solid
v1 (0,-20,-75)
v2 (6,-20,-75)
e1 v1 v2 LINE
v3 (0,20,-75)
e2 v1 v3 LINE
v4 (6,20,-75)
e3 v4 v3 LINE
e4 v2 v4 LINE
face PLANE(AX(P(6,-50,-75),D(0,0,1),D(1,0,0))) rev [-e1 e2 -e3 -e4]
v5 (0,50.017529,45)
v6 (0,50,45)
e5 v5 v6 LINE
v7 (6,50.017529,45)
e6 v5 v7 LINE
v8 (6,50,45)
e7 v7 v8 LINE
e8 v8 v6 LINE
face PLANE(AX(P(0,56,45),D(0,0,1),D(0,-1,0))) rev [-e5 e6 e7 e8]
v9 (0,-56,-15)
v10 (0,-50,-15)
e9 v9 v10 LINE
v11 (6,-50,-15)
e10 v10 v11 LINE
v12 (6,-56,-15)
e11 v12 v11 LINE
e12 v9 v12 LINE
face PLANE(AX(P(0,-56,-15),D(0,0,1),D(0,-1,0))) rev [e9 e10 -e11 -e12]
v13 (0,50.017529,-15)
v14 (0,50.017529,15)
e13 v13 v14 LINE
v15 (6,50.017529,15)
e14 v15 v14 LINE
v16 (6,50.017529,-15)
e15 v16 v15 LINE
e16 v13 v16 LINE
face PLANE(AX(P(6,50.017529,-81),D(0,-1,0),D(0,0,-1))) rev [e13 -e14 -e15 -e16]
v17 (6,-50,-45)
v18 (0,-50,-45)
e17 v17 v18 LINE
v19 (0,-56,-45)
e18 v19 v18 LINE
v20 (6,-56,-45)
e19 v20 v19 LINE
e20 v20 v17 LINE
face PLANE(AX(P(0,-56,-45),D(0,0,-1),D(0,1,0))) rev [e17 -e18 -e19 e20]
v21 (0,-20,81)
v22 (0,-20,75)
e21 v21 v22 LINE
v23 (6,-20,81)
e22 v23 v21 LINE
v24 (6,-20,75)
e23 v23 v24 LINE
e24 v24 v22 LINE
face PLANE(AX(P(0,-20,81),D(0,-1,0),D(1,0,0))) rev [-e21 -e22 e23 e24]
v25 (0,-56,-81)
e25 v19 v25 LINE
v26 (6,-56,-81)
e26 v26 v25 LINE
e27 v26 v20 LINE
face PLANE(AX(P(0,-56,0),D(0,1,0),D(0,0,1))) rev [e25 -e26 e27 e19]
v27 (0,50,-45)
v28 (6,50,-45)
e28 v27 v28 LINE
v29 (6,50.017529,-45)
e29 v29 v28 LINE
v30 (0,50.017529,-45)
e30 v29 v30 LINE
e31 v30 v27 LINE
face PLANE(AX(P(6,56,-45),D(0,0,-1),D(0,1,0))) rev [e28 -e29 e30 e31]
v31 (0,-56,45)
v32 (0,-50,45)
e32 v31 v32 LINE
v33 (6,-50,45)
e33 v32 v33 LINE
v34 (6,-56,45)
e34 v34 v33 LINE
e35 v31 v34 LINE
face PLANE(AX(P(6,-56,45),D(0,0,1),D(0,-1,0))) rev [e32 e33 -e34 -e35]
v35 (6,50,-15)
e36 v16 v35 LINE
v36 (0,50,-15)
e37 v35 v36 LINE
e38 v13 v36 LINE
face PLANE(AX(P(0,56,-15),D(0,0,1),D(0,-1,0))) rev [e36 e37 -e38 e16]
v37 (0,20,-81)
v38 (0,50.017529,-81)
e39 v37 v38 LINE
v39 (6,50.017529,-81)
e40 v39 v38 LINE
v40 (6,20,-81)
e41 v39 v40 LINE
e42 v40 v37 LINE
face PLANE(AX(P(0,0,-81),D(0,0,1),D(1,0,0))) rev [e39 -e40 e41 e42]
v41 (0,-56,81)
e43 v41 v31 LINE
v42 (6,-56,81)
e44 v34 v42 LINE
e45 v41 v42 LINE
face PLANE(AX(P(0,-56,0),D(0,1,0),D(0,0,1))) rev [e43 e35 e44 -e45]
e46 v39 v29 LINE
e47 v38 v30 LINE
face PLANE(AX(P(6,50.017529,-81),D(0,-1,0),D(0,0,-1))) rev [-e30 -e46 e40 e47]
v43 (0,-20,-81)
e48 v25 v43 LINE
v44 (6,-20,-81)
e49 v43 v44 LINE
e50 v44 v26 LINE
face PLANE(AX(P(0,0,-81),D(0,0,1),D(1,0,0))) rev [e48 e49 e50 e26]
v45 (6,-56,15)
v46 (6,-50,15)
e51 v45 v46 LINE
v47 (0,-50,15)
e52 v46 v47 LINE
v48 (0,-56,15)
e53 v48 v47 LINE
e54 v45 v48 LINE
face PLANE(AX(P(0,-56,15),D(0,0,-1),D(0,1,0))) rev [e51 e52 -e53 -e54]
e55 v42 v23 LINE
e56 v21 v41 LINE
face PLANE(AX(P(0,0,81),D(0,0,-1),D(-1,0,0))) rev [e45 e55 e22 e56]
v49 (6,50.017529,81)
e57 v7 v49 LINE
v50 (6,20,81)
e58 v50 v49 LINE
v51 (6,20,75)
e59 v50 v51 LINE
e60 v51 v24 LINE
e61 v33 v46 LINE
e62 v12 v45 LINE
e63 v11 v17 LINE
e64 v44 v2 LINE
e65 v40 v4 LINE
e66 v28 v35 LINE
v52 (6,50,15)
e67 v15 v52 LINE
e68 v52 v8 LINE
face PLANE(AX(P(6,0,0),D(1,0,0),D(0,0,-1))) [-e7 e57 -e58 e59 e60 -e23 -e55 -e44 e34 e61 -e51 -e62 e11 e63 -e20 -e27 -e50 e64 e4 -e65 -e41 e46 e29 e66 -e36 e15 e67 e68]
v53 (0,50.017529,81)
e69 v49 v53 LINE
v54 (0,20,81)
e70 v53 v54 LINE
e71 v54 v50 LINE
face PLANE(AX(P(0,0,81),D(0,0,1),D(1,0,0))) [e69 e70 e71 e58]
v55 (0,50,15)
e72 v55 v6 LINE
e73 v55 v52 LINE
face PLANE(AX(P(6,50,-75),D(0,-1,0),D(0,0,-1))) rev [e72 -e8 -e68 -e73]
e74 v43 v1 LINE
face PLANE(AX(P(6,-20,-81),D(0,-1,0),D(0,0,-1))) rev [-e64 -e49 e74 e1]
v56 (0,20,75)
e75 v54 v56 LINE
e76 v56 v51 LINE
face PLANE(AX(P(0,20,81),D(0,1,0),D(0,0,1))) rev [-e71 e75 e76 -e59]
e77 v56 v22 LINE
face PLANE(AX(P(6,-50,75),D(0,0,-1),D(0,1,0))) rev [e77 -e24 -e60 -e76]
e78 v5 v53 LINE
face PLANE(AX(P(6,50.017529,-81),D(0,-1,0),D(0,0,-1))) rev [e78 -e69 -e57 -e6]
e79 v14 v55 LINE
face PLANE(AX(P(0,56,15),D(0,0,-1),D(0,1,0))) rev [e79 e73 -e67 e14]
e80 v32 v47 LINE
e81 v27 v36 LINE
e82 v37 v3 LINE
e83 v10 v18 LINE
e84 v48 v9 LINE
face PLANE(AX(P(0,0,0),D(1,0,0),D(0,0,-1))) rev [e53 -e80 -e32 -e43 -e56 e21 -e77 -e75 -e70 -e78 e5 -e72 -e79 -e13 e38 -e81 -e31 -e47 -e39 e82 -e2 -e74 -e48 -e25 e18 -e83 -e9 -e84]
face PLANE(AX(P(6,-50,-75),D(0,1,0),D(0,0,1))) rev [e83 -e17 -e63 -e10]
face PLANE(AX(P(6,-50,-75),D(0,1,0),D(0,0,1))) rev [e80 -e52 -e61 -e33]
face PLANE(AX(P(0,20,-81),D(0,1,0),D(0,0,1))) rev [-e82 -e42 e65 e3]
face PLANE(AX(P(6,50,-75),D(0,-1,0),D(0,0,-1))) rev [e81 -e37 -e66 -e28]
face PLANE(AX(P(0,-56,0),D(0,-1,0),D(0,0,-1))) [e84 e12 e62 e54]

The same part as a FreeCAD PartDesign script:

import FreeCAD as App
import Part
import Sketcher

V = App.Vector

doc = App.newDocument("Part")
body = doc.addObject("PartDesign::Body", "Body")

sketch1 = body.newObject("Sketcher::SketchObject", "Sketch")
sketch1.AttachmentSupport = (doc.getObject("YZ_Plane"), [""])
sketch1.MapMode = "FlatFace"
sketch1.addGeometry(Part.LineSegment(V(50, 75, 0), V(-50, 75, 0)), False)
sketch1.addGeometry(Part.LineSegment(V(-50, 75, 0), V(-50, -75, 0)), False)
sketch1.addGeometry(Part.LineSegment(V(-50, -75, 0), V(50, -75, 0)), False)
sketch1.addGeometry(Part.LineSegment(V(50, -75, 0), V(50, 75, 0)), False)
sketch1.addConstraint(Sketcher.Constraint("Coincident", 0, 2, 1, 1))
sketch1.addConstraint(Sketcher.Constraint("Coincident", 1, 2, 2, 1))
sketch1.addConstraint(Sketcher.Constraint("Coincident", 2, 2, 3, 1))
sketch1.addConstraint(Sketcher.Constraint("Coincident", 3, 2, 0, 1))
sketch1.addConstraint(Sketcher.Constraint("Horizontal", 0))
sketch1.addConstraint(Sketcher.Constraint("Vertical", 1))
sketch1.addConstraint(Sketcher.Constraint("Horizontal", 2))
sketch1.addConstraint(Sketcher.Constraint("Vertical", 3))
sketch1.addConstraint(Sketcher.Constraint("Symmetric", 0, 2, 2, 2, -1, 1))
sketch1.addConstraint(Sketcher.Constraint("DistanceX", 0, 2, 0, 1, 100.0))
sketch1.addConstraint(Sketcher.Constraint("DistanceY", 1, 2, 1, 1, 150.0))
pad1 = body.newObject("PartDesign::Pad", "Pad")
pad1.Profile = sketch1
pad1.Length = 6

sketch2 = body.newObject("Sketcher::SketchObject", "Sketch001")
sketch2.AttachmentSupport = (doc.getObject("XZ_Plane"), [""])
sketch2.MapMode = "FlatFace"
sketch2.AttachmentOffset = App.Placement(V(0, 0, -50), App.Rotation())
sketch2.addGeometry(Part.LineSegment(V(0, -75, 0), V(0, -45, 0)), False)
sketch2.addGeometry(Part.LineSegment(V(0, -45, 0), V(6, -45, 0)), False)
sketch2.addGeometry(Part.LineSegment(V(6, -45, 0), V(6, -75, 0)), False)
sketch2.addGeometry(Part.LineSegment(V(6, -75, 0), V(0, -75, 0)), False)
sketch2.addGeometry(Part.LineSegment(V(0, -15, 0), V(0, 15, 0)), False)
sketch2.addGeometry(Part.LineSegment(V(0, 15, 0), V(6, 15, 0)), False)
sketch2.addGeometry(Part.LineSegment(V(6, 15, 0), V(6, -15, 0)), False)
sketch2.addGeometry(Part.LineSegment(V(6, -15, 0), V(0, -15, 0)), False)
sketch2.addGeometry(Part.LineSegment(V(0, 45, 0), V(0, 75, 0)), False)
sketch2.addGeometry(Part.LineSegment(V(0, 75, 0), V(6, 75, 0)), False)
sketch2.addGeometry(Part.LineSegment(V(6, 75, 0), V(6, 45, 0)), False)
sketch2.addGeometry(Part.LineSegment(V(6, 45, 0), V(0, 45, 0)), False)
sketch2.addConstraint(Sketcher.Constraint("Coincident", 0, 2, 1, 1))
sketch2.addConstraint(Sketcher.Constraint("Coincident", 1, 2, 2, 1))
sketch2.addConstraint(Sketcher.Constraint("Coincident", 2, 2, 3, 1))
sketch2.addConstraint(Sketcher.Constraint("Coincident", 3, 2, 0, 1))
sketch2.addConstraint(Sketcher.Constraint("Coincident", 4, 2, 5, 1))
sketch2.addConstraint(Sketcher.Constraint("Coincident", 5, 2, 6, 1))
sketch2.addConstraint(Sketcher.Constraint("Coincident", 6, 2, 7, 1))
sketch2.addConstraint(Sketcher.Constraint("Coincident", 7, 2, 4, 1))
sketch2.addConstraint(Sketcher.Constraint("Coincident", 8, 2, 9, 1))
sketch2.addConstraint(Sketcher.Constraint("Coincident", 9, 2, 10, 1))
sketch2.addConstraint(Sketcher.Constraint("Coincident", 10, 2, 11, 1))
sketch2.addConstraint(Sketcher.Constraint("Coincident", 11, 2, 8, 1))
sketch2.addConstraint(Sketcher.Constraint("Vertical", 0))
sketch2.addConstraint(Sketcher.Constraint("Horizontal", 1))
sketch2.addConstraint(Sketcher.Constraint("Vertical", 2))
sketch2.addConstraint(Sketcher.Constraint("Horizontal", 3))
sketch2.addConstraint(Sketcher.Constraint("Vertical", 4))
sketch2.addConstraint(Sketcher.Constraint("Horizontal", 5))
sketch2.addConstraint(Sketcher.Constraint("Vertical", 6))
sketch2.addConstraint(Sketcher.Constraint("Horizontal", 7))
sketch2.addConstraint(Sketcher.Constraint("Vertical", 8))
sketch2.addConstraint(Sketcher.Constraint("Horizontal", 9))
sketch2.addConstraint(Sketcher.Constraint("Vertical", 10))
sketch2.addConstraint(Sketcher.Constraint("Horizontal", 11))
sketch2.addConstraint(Sketcher.Constraint("Symmetric", 4, 2, 7, 2, -1, 1))
sketch2.addConstraint(Sketcher.Constraint("Symmetric", 3, 2, 8, 2, -1, 1))
sketch2.addConstraint(Sketcher.Constraint("Symmetric", 1, 2, 10, 2, -1))
sketch2.addConstraint(Sketcher.Constraint("PointOnObject", 0, 2, -2))
sketch2.addConstraint(Sketcher.Constraint("Vertical", 2, 2, 5, 2))
sketch2.addConstraint(Sketcher.Constraint("Equal", 2, 4))
sketch2.addConstraint(Sketcher.Constraint("DistanceX", 1, 1, 1, 2, 6.0))
sketch2.addConstraint(Sketcher.Constraint("DistanceY", 0, 1, 0, 2, 30.0))
sketch2.addConstraint(Sketcher.Constraint("DistanceY", 0, 2, -1, 1, 45.0))
pad2 = body.newObject("PartDesign::Pad", "Pad001")
pad2.Profile = sketch2
pad2.Length = 6
pad2.Reversed = True

sketch3 = body.newObject("Sketcher::SketchObject", "Sketch002")
sketch3.AttachmentSupport = (doc.getObject("XZ_Plane"), [""])
sketch3.MapMode = "FlatFace"
sketch3.AttachmentOffset = App.Placement(V(0, 0, 50), App.Rotation())
sketch3.addGeometry(Part.LineSegment(V(0, 75, 0), V(0, 45, 0)), False)
sketch3.addGeometry(Part.LineSegment(V(0, 45, 0), V(6, 45, 0)), False)
sketch3.addGeometry(Part.LineSegment(V(6, 45, 0), V(6, 75, 0)), False)
sketch3.addGeometry(Part.LineSegment(V(6, 75, 0), V(0, 75, 0)), False)
sketch3.addGeometry(Part.LineSegment(V(0, 15, 0), V(0, -15, 0)), False)
sketch3.addGeometry(Part.LineSegment(V(0, -15, 0), V(6, -15, 0)), False)
sketch3.addGeometry(Part.LineSegment(V(6, -15, 0), V(6, 15, 0)), False)
sketch3.addGeometry(Part.LineSegment(V(6, 15, 0), V(0, 15, 0)), False)
sketch3.addGeometry(Part.LineSegment(V(0, -45, 0), V(0, -75, 0)), False)
sketch3.addGeometry(Part.LineSegment(V(0, -75, 0), V(6, -75, 0)), False)
sketch3.addGeometry(Part.LineSegment(V(6, -75, 0), V(6, -45, 0)), False)
sketch3.addGeometry(Part.LineSegment(V(6, -45, 0), V(0, -45, 0)), False)
sketch3.addConstraint(Sketcher.Constraint("Coincident", 0, 2, 1, 1))
sketch3.addConstraint(Sketcher.Constraint("Coincident", 1, 2, 2, 1))
sketch3.addConstraint(Sketcher.Constraint("Coincident", 2, 2, 3, 1))
sketch3.addConstraint(Sketcher.Constraint("Coincident", 3, 2, 0, 1))
sketch3.addConstraint(Sketcher.Constraint("Coincident", 4, 2, 5, 1))
sketch3.addConstraint(Sketcher.Constraint("Coincident", 5, 2, 6, 1))
sketch3.addConstraint(Sketcher.Constraint("Coincident", 6, 2, 7, 1))
sketch3.addConstraint(Sketcher.Constraint("Coincident", 7, 2, 4, 1))
sketch3.addConstraint(Sketcher.Constraint("Coincident", 8, 2, 9, 1))
sketch3.addConstraint(Sketcher.Constraint("Coincident", 9, 2, 10, 1))
sketch3.addConstraint(Sketcher.Constraint("Coincident", 10, 2, 11, 1))
sketch3.addConstraint(Sketcher.Constraint("Coincident", 11, 2, 8, 1))
sketch3.addConstraint(Sketcher.Constraint("Vertical", 0))
sketch3.addConstraint(Sketcher.Constraint("Horizontal", 1))
sketch3.addConstraint(Sketcher.Constraint("Vertical", 2))
sketch3.addConstraint(Sketcher.Constraint("Horizontal", 3))
sketch3.addConstraint(Sketcher.Constraint("Vertical", 4))
sketch3.addConstraint(Sketcher.Constraint("Horizontal", 5))
sketch3.addConstraint(Sketcher.Constraint("Vertical", 6))
sketch3.addConstraint(Sketcher.Constraint("Horizontal", 7))
sketch3.addConstraint(Sketcher.Constraint("Vertical", 8))
sketch3.addConstraint(Sketcher.Constraint("Horizontal", 9))
sketch3.addConstraint(Sketcher.Constraint("Vertical", 10))
sketch3.addConstraint(Sketcher.Constraint("Horizontal", 11))
sketch3.addConstraint(Sketcher.Constraint("Symmetric", 4, 2, 7, 2, -1, 1))
sketch3.addConstraint(Sketcher.Constraint("Symmetric", 3, 2, 8, 2, -1, 1))
sketch3.addConstraint(Sketcher.Constraint("Symmetric", 1, 2, 10, 2, -1))
sketch3.addConstraint(Sketcher.Constraint("PointOnObject", 0, 2, -2))
sketch3.addConstraint(Sketcher.Constraint("Vertical", 2, 2, 5, 2))
sketch3.addConstraint(Sketcher.Constraint("Equal", 2, 4))
sketch3.addConstraint(Sketcher.Constraint("DistanceX", 1, 1, 1, 2, 6.0))
sketch3.addConstraint(Sketcher.Constraint("DistanceY", 0, 2, 0, 1, 30.0))
sketch3.addConstraint(Sketcher.Constraint("DistanceY", -1, 1, 0, 2, 45.0))
pad3 = body.newObject("PartDesign::Pad", "Pad002")
pad3.Profile = sketch3
pad3.Length = 6

sketch4 = body.newObject("Sketcher::SketchObject", "Sketch003")
sketch4.AttachmentSupport = (doc.getObject("XY_Plane"), [""])
sketch4.MapMode = "FlatFace"
sketch4.AttachmentOffset = App.Placement(V(0, 0, 75), App.Rotation())
sketch4.addGeometry(Part.LineSegment(V(0, 56, 0), V(0, 20, 0)), False)
sketch4.addGeometry(Part.LineSegment(V(0, 20, 0), V(6, 20, 0)), False)
sketch4.addGeometry(Part.LineSegment(V(6, 20, 0), V(6, 56, 0)), False)
sketch4.addGeometry(Part.LineSegment(V(6, 56, 0), V(0, 56, 0)), False)
sketch4.addGeometry(Part.LineSegment(V(0, -20, 0), V(0, -56, 0)), False)
sketch4.addGeometry(Part.LineSegment(V(0, -56, 0), V(6, -56, 0)), False)
sketch4.addGeometry(Part.LineSegment(V(6, -56, 0), V(6, -20, 0)), False)
sketch4.addGeometry(Part.LineSegment(V(6, -20, 0), V(0, -20, 0)), False)
sketch4.addConstraint(Sketcher.Constraint("Coincident", 0, 2, 1, 1))
sketch4.addConstraint(Sketcher.Constraint("Coincident", 1, 2, 2, 1))
sketch4.addConstraint(Sketcher.Constraint("Coincident", 2, 2, 3, 1))
sketch4.addConstraint(Sketcher.Constraint("Coincident", 3, 2, 0, 1))
sketch4.addConstraint(Sketcher.Constraint("Coincident", 4, 2, 5, 1))
sketch4.addConstraint(Sketcher.Constraint("Coincident", 5, 2, 6, 1))
sketch4.addConstraint(Sketcher.Constraint("Coincident", 6, 2, 7, 1))
sketch4.addConstraint(Sketcher.Constraint("Coincident", 7, 2, 4, 1))
sketch4.addConstraint(Sketcher.Constraint("Vertical", 0))
sketch4.addConstraint(Sketcher.Constraint("Horizontal", 1))
sketch4.addConstraint(Sketcher.Constraint("Vertical", 2))
sketch4.addConstraint(Sketcher.Constraint("Horizontal", 3))
sketch4.addConstraint(Sketcher.Constraint("Vertical", 4))
sketch4.addConstraint(Sketcher.Constraint("Horizontal", 5))
sketch4.addConstraint(Sketcher.Constraint("Vertical", 6))
sketch4.addConstraint(Sketcher.Constraint("Horizontal", 7))
sketch4.addConstraint(Sketcher.Constraint("Symmetric", 3, 2, 4, 2, -1, 1))
sketch4.addConstraint(Sketcher.Constraint("Symmetric", 1, 2, 6, 2, -1))
sketch4.addConstraint(Sketcher.Constraint("PointOnObject", 0, 2, -2))
sketch4.addConstraint(Sketcher.Constraint("DistanceX", 1, 1, 1, 2, 6.0))
sketch4.addConstraint(Sketcher.Constraint("DistanceY", 0, 2, 0, 1, 36.0))
sketch4.addConstraint(Sketcher.Constraint("DistanceY", -1, 1, 0, 2, 20.0))
pad4 = body.newObject("PartDesign::Pad", "Pad003")
pad4.Profile = sketch4
pad4.Length = 6

sketch5 = body.newObject("Sketcher::SketchObject", "Sketch004")
sketch5.AttachmentSupport = (doc.getObject("XY_Plane"), [""])
sketch5.MapMode = "FlatFace"
sketch5.AttachmentOffset = App.Placement(V(0, 0, -75), App.Rotation())
sketch5.addGeometry(Part.LineSegment(V(6, -20, 0), V(6, -56, 0)), False)
sketch5.addGeometry(Part.LineSegment(V(6, -56, 0), V(0, -56, 0)), False)
sketch5.addGeometry(Part.LineSegment(V(0, -56, 0), V(0, -20, 0)), False)
sketch5.addGeometry(Part.LineSegment(V(0, -20, 0), V(6, -20, 0)), False)
sketch5.addGeometry(Part.LineSegment(V(6, 56, 0), V(6, 20, 0)), False)
sketch5.addGeometry(Part.LineSegment(V(6, 20, 0), V(0, 20, 0)), False)
sketch5.addGeometry(Part.LineSegment(V(0, 20, 0), V(0, 56, 0)), False)
sketch5.addGeometry(Part.LineSegment(V(0, 56, 0), V(6, 56, 0)), False)
sketch5.addConstraint(Sketcher.Constraint("Coincident", 0, 2, 1, 1))
sketch5.addConstraint(Sketcher.Constraint("Coincident", 1, 2, 2, 1))
sketch5.addConstraint(Sketcher.Constraint("Coincident", 2, 2, 3, 1))
sketch5.addConstraint(Sketcher.Constraint("Coincident", 3, 2, 0, 1))
sketch5.addConstraint(Sketcher.Constraint("Coincident", 4, 2, 5, 1))
sketch5.addConstraint(Sketcher.Constraint("Coincident", 5, 2, 6, 1))
sketch5.addConstraint(Sketcher.Constraint("Coincident", 6, 2, 7, 1))
sketch5.addConstraint(Sketcher.Constraint("Coincident", 7, 2, 4, 1))
sketch5.addConstraint(Sketcher.Constraint("Vertical", 0))
sketch5.addConstraint(Sketcher.Constraint("Horizontal", 1))
sketch5.addConstraint(Sketcher.Constraint("Vertical", 2))
sketch5.addConstraint(Sketcher.Constraint("Horizontal", 3))
sketch5.addConstraint(Sketcher.Constraint("Vertical", 4))
sketch5.addConstraint(Sketcher.Constraint("Horizontal", 5))
sketch5.addConstraint(Sketcher.Constraint("Vertical", 6))
sketch5.addConstraint(Sketcher.Constraint("Horizontal", 7))
sketch5.addConstraint(Sketcher.Constraint("Symmetric", 2, 2, 5, 2, -1, 1))
sketch5.addConstraint(Sketcher.Constraint("Symmetric", 1, 2, 6, 2, -1))
sketch5.addConstraint(Sketcher.Constraint("Vertical", 3, 2, 4, 2))
sketch5.addConstraint(Sketcher.Constraint("DistanceX", 1, 2, 1, 1, 6.0))
sketch5.addConstraint(Sketcher.Constraint("DistanceY", 0, 2, 0, 1, 36.0))
sketch5.addConstraint(Sketcher.Constraint("DistanceY", 0, 2, -1, 1, 56.0))
pad5 = body.newObject("PartDesign::Pad", "Pad004")
pad5.Profile = sketch5
pad5.Length = 6
pad5.Reversed = True

sketch6 = body.newObject("Sketcher::SketchObject", "Sketch005")
sketch6.AttachmentSupport = (doc.getObject("YZ_Plane"), [""])
sketch6.MapMode = "FlatFace"
sketch6.addGeometry(Part.LineSegment(V(56, -81, 0), V(50, -81, 0)), False)
sketch6.addGeometry(Part.LineSegment(V(50, -81, 0), V(50, 81, 0)), False)
sketch6.addGeometry(Part.LineSegment(V(50, 81, 0), V(56, 81, 0)), False)
sketch6.addGeometry(Part.LineSegment(V(56, 81, 0), V(56, -81, 0)), False)
sketch6.addConstraint(Sketcher.Constraint("Coincident", 0, 2, 1, 1))
sketch6.addConstraint(Sketcher.Constraint("Coincident", 1, 2, 2, 1))
sketch6.addConstraint(Sketcher.Constraint("Coincident", 2, 2, 3, 1))
sketch6.addConstraint(Sketcher.Constraint("Coincident", 3, 2, 0, 1))
sketch6.addConstraint(Sketcher.Constraint("Horizontal", 0))
sketch6.addConstraint(Sketcher.Constraint("Vertical", 1))
sketch6.addConstraint(Sketcher.Constraint("Horizontal", 2))
sketch6.addConstraint(Sketcher.Constraint("Vertical", 3))
sketch6.addConstraint(Sketcher.Constraint("DistanceY", 1, 1, 1, 2, 162.0))
sketch6.addConstraint(Sketcher.Constraint("DistanceY", 0, 2, -1, 1, 81.0))
sketch6.addConstraint(Sketcher.Constraint("DistanceX", -1, 1, 2, 2, 56.0))
sketch6.addConstraint(Sketcher.Constraint("DistanceX", 0, 2, 0, 1, 5.982471))
pocket1 = body.newObject("PartDesign::Pocket", "Pocket")
pocket1.Profile = sketch6
pocket1.Length = 6
pocket1.Reversed = True

doc.recompute()
